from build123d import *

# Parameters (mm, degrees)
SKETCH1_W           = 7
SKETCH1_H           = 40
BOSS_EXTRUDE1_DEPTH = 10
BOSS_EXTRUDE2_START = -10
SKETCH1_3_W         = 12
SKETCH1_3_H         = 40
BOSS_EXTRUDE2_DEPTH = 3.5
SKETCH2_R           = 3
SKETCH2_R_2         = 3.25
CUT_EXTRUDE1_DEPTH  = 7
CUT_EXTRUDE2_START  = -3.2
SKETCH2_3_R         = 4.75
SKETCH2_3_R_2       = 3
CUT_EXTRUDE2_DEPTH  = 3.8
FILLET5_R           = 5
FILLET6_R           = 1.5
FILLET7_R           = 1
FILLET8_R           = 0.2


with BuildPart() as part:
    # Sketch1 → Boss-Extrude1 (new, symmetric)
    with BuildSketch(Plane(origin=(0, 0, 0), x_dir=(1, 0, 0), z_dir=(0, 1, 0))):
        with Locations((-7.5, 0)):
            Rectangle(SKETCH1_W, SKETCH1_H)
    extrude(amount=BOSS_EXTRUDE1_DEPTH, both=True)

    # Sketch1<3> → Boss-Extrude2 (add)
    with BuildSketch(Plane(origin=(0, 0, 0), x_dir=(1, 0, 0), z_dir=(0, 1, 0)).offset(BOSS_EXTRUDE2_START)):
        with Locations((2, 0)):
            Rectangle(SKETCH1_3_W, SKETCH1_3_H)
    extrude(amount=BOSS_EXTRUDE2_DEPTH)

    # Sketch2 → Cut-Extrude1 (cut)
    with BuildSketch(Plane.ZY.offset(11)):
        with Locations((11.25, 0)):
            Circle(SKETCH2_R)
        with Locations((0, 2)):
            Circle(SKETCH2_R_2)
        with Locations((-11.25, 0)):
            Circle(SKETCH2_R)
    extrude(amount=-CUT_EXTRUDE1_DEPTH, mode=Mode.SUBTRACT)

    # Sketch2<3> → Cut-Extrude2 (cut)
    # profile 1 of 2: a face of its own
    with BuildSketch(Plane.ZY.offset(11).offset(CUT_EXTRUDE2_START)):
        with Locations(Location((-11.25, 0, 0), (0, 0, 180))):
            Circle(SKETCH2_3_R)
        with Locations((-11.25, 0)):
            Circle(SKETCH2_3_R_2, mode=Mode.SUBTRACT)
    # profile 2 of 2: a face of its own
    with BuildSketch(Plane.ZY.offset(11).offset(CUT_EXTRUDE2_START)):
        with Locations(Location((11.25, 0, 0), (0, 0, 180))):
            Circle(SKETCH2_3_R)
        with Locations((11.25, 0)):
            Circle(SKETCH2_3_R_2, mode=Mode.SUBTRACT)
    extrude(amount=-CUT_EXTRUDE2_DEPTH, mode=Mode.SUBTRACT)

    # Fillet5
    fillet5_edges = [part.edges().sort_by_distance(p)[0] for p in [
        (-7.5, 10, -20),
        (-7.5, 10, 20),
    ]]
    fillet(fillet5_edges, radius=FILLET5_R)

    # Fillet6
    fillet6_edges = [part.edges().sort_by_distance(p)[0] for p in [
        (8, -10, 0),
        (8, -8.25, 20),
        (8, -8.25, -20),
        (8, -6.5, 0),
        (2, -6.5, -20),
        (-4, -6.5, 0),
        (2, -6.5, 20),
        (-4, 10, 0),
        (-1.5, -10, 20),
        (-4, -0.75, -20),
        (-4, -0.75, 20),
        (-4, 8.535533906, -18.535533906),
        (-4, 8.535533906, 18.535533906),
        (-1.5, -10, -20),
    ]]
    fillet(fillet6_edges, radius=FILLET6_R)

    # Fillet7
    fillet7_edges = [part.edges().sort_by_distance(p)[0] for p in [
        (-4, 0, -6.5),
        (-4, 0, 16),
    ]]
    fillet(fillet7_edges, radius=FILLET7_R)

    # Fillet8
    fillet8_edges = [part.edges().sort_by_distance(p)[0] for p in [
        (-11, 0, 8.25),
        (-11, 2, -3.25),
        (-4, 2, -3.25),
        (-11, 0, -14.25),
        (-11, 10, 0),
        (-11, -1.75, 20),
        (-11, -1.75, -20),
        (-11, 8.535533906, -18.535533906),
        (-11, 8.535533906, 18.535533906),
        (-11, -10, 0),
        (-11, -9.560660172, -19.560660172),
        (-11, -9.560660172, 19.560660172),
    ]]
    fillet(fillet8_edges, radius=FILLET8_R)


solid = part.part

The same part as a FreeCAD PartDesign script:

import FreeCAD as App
import Part
import Sketcher

V = App.Vector
Q = App.Units.Quantity


def edges_at(feature, points):
    """Names of the edges that pass closest to the given points."""
    edges = feature.Shape.Edges
    near = lambda p: min(range(len(edges)), key=lambda i: edges[i].distToShape(Part.Vertex(*p))[0])
    return sorted({f"Edge{near(p) + 1}" for p in points})


def add_polygon(sketch, points):
    """Adds a closed chain of lines whose ends are joined by coincident constraints."""
    first, n = sketch.GeometryCount, len(points)
    for a, b in zip(points, points[1:] + points[:1]):
        sketch.addGeometry(Part.LineSegment(App.Vector(*a, 0), App.Vector(*b, 0)), False)
    for i in range(n):
        sketch.addConstraint(Sketcher.Constraint("Coincident", first + i, 2, first + (i + 1) % n, 1))

doc = App.newDocument("Part")
body = doc.addObject("PartDesign::Body", "Body")

# Sketch on XZ plane
sketch1 = doc.addObject("Sketcher::SketchObject", "Sketch")
body.addObject(sketch1)
sketch1.AttachmentSupport = (doc.XZ_Plane, [""])
sketch1.MapMode = "FlatFace"
add_polygon(sketch1, [(-11, -20), (-11, 20), (-4, 20), (-4, -20)])  # lines 0-3
sketch1.addConstraint(Sketcher.Constraint("Vertical", 0))
sketch1.addConstraint(Sketcher.Constraint("Horizontal", 1))
sketch1.addConstraint(Sketcher.Constraint("Vertical", 2))
sketch1.addConstraint(Sketcher.Constraint("Horizontal", 3))
sketch1.addConstraint(Sketcher.Constraint("DistanceX", 1, 1, 1, 2, Q("7 mm")))
sketch1.addConstraint(Sketcher.Constraint("DistanceY", 0, 1, 0, 2, Q("40 mm")))
sketch1.addConstraint(Sketcher.Constraint("DistanceX", 0, 2, -1, 1, Q("11 mm")))
sketch1.addConstraint(Sketcher.Constraint("DistanceY", -1, 1, 0, 2, Q("20 mm")))
pad1 = doc.addObject("PartDesign::Pad", "Pad")
body.addObject(pad1)
pad1.Profile = sketch1
pad1.Length = 20
pad1.Midplane = True

# Sketch on XZ plane
sketch2 = doc.addObject("Sketcher::SketchObject", "Sketch001")
body.addObject(sketch2)
sketch2.AttachmentSupport = (doc.XZ_Plane, [""])
sketch2.MapMode = "FlatFace"
sketch2.AttachmentOffset = App.Placement(V(0, 0, 10), App.Rotation())
add_polygon(sketch2, [(-4, -20), (-4, 20), (8, 20), (8, -20)])  # lines 0-3
sketch2.addConstraint(Sketcher.Constraint("Vertical", 0))
sketch2.addConstraint(Sketcher.Constraint("Horizontal", 1))
sketch2.addConstraint(Sketcher.Constraint("Vertical", 2))
sketch2.addConstraint(Sketcher.Constraint("Horizontal", 3))
sketch2.addConstraint(Sketcher.Constraint("DistanceX", 1, 1, 1, 2, Q("12 mm")))
sketch2.addConstraint(Sketcher.Constraint("DistanceY", 0, 1, 0, 2, Q("40 mm")))
sketch2.addConstraint(Sketcher.Constraint("DistanceX", 0, 2, -1, 1, Q("4 mm")))
sketch2.addConstraint(Sketcher.Constraint("DistanceY", -1, 1, 0, 2, Q("20 mm")))
pad2 = doc.addObject("PartDesign::Pad", "Pad001")
body.addObject(pad2)
pad2.Profile = sketch2
pad2.Length = 3.5
pad2.Reversed = True

# Sketch on YZ plane
sketch3 = doc.addObject("Sketcher::SketchObject", "Sketch002")
body.addObject(sketch3)
sketch3.AttachmentSupport = (doc.YZ_Plane, [""])
sketch3.MapMode = "FlatFace"
sketch3.AttachmentOffset = App.Placement(V(0, 0, -11), App.Rotation())
sketch3.addGeometry(Part.Circle(V(0, 11.2, 0), V(0, 0, 1), 3), False)
sketch3.addGeometry(Part.Circle(V(2, 0, 0), V(0, 0, 1), 3.2), False)
sketch3.addGeometry(Part.Circle(V(0, -11.2, 0), V(0, 0, 1), 3), False)
sketch3.addConstraint(Sketcher.Constraint("Equal", 0, 2))
sketch3.addConstraint(Sketcher.Constraint("Symmetric", 0, 3, 2, 3, -1, 1))
sketch3.addConstraint(Sketcher.Constraint("PointOnObject", 0, 3, -2))
sketch3.addConstraint(Sketcher.Constraint("PointOnObject", 1, 3, -1))
sketch3.addConstraint(Sketcher.Constraint("Diameter", 0, Q("6 mm")))
sketch3.addConstraint(Sketcher.Constraint("Diameter", 1, Q("6.5 mm")))
sketch3.addConstraint(Sketcher.Constraint("DistanceX", -1, 1, 1, 3, Q("2 mm")))
sketch3.addConstraint(Sketcher.Constraint("DistanceY", 2, 3, 0, 3, Q("22.5 mm")))
pocket1 = doc.addObject("PartDesign::Pocket", "Pocket")
body.addObject(pocket1)
pocket1.Profile = sketch3
pocket1.Length = 7
pocket1.Reversed = True

# Sketch on YZ plane
sketch4 = doc.addObject("Sketcher::SketchObject", "Sketch003")
body.addObject(sketch4)
sketch4.AttachmentSupport = (doc.YZ_Plane, [""])
sketch4.MapMode = "FlatFace"
sketch4.AttachmentOffset = App.Placement(V(0, 0, -7.8), App.Rotation())
sketch4.addGeometry(Part.Circle(V(0, -11.2, 0), V(0, 0, 1), 4.8), False)
sketch4.addGeometry(Part.Circle(V(0, -11.2, 0), V(0, 0, 1), 3), False)
sketch4.addGeometry(Part.Circle(V(0, 11.2, 0), V(0, 0, 1), 4.8), False)
sketch4.addGeometry(Part.Circle(V(0, 11.2, 0), V(0, 0, 1), 3), False)
sketch4.addConstraint(Sketcher.Constraint("Coincident", 1, 3, 0, 3))
sketch4.addConstraint(Sketcher.Constraint("Coincident", 3, 3, 2, 3))
sketch4.addConstraint(Sketcher.Constraint("Equal", 0, 2))
sketch4.addConstraint(Sketcher.Constraint("Equal", 1, 3))
sketch4.addConstraint(Sketcher.Constraint("Symmetric", 0, 3, 2, 3, -1, 1))
sketch4.addConstraint(Sketcher.Constraint("PointOnObject", 0, 3, -2))
sketch4.addConstraint(Sketcher.Constraint("Diameter", 1, Q("6 mm")))
sketch4.addConstraint(Sketcher.Constraint("Diameter", 0, Q("9.5 mm")))
sketch4.addConstraint(Sketcher.Constraint("DistanceY", 0, 3, 2, 3, Q("22.5 mm")))
pocket2 = doc.addObject("PartDesign::Pocket", "Pocket001")
body.addObject(pocket2)
pocket2.Profile = sketch4
pocket2.Length = 3.8
pocket2.Reversed = True
doc.recompute()

fillet = doc.addObject("PartDesign::Fillet", "Fillet")
body.addObject(fillet)
fillet.Base = (pocket2, edges_at(pocket2, [(-7.5, 10, -20), (-7.5, 10, 20)]))
fillet.Radius = 5
doc.recompute()

fillet2 = doc.addObject("PartDesign::Fillet", "Fillet001")
body.addObject(fillet2)
fillet2.Base = (fillet, edges_at(fillet, [
    (8, -10, 0),
    (8, -8.25, 20),
    (8, -8.25, -20),
    (8, -6.5, 0),
    (2, -6.5, -20),
    (-4, -6.5, 0),
    (2, -6.5, 20),
    (-4, 10, 0),
    (-1.5, -10, 20),
    (-4, -0.75, -20),
    (-4, -0.75, 20),
    (-4, 8.536, -18.536),
    (-4, 8.536, 18.536),
    (-1.5, -10, -20),
]))
fillet2.Radius = 1.5
doc.recompute()

fillet3 = doc.addObject("PartDesign::Fillet", "Fillet002")
body.addObject(fillet3)
fillet3.Base = (fillet2, edges_at(fillet2, [(-4, 0, -6.5), (-4, 0, 16)]))
fillet3.Radius = 1
doc.recompute()

fillet4 = doc.addObject("PartDesign::Fillet", "Fillet003")
body.addObject(fillet4)
fillet4.Base = (fillet3, edges_at(fillet3, [
    (-11, 0, 8.25),
    (-11, 2, -3.25),
    (-4, 2, -3.25),
    (-11, 0, -14.25),
    (-11, 10, 0),
    (-11, -1.75, 20),
    (-11, -1.75, -20),
    (-11, 8.536, -18.536),
    (-11, 8.536, 18.536),
    (-11, -10, 0),
    (-11, -9.561, -19.561),
    (-11, -9.561, 19.561),
]))
fillet4.Radius = 0.2

doc.recompute()
